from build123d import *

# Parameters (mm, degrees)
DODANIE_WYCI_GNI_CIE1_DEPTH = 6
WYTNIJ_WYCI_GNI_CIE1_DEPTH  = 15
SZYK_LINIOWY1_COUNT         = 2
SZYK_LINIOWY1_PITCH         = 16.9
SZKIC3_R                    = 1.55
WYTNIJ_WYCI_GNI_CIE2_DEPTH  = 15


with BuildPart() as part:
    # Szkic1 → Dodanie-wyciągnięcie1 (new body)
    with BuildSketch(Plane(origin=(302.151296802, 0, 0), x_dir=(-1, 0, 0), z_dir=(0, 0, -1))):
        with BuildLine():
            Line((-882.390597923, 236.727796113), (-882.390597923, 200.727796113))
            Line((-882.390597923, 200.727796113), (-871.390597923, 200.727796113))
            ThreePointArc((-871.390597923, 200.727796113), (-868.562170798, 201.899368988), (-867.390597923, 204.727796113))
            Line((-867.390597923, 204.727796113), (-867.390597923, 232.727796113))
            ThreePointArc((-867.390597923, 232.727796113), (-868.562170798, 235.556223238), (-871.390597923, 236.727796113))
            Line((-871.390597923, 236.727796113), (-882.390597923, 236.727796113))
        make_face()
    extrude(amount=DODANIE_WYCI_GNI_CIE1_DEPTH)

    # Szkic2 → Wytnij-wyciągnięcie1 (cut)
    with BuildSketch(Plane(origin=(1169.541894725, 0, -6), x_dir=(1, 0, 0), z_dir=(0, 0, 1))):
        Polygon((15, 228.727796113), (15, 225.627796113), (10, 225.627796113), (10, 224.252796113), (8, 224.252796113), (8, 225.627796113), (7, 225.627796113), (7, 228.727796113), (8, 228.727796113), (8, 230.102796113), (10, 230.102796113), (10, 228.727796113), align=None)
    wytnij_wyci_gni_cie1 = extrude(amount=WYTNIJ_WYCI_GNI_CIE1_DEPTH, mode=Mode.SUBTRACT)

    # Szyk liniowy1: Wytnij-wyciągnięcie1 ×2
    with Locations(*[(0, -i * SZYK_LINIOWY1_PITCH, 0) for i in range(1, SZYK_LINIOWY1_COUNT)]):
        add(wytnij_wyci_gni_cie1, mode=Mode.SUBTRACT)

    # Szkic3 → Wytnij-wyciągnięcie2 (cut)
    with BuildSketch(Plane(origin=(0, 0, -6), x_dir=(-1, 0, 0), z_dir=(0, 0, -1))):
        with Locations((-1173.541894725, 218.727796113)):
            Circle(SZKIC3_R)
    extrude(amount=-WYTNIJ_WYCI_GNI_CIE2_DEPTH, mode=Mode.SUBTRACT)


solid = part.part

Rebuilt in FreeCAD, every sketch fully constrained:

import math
import FreeCAD as App
import Part
import Sketcher
from FreeCAD import Vector

doc = App.newDocument("Part")
body = doc.addObject("PartDesign::Body", "Body")

sketch1 = body.newObject("Sketcher::SketchObject", "Sketch")
sketch1.AttachmentSupport = (doc.getObject("XY_Plane"), [""])
sketch1.MapMode = "FlatFace"
sketch1.addGeometry(Part.LineSegment(Vector(1184.5, 236.7, 0), Vector(1184.5, 200.7, 0)), False)
sketch1.addGeometry(Part.LineSegment(Vector(1184.5, 200.7, 0), Vector(1173.5, 200.7, 0)), False)
sketch1.addGeometry(Part.ArcOfCircle(Part.Circle(Vector(1173.5, 204.7, 0), Vector(0, 0, 1), 4), math.radians(180), math.radians(270)), False)
sketch1.addGeometry(Part.LineSegment(Vector(1169.5, 204.7, 0), Vector(1169.5, 232.7, 0)), False)
sketch1.addGeometry(Part.ArcOfCircle(Part.Circle(Vector(1173.5, 232.7, 0), Vector(0, 0, 1), 4), math.radians(90), math.radians(180)), False)
sketch1.addGeometry(Part.LineSegment(Vector(1173.5, 236.7, 0), Vector(1184.5, 236.7, 0)), False)
sketch1.addConstraint(Sketcher.Constraint("Coincident", 0, 2, 1, 1))
sketch1.addConstraint(Sketcher.Constraint("Tangent", 1, 2, 2, 2))
sketch1.addConstraint(Sketcher.Constraint("Tangent", 2, 1, 3, 1))
sketch1.addConstraint(Sketcher.Constraint("Tangent", 3, 2, 4, 2))
sketch1.addConstraint(Sketcher.Constraint("Tangent", 4, 1, 5, 1))
sketch1.addConstraint(Sketcher.Constraint("Coincident", 5, 2, 0, 1))
sketch1.addConstraint(Sketcher.Constraint("Vertical", 0))
sketch1.addConstraint(Sketcher.Constraint("Horizontal", 1))
sketch1.addConstraint(Sketcher.Constraint("Vertical", 3))
sketch1.addConstraint(Sketcher.Constraint("Horizontal", 5))
sketch1.addConstraint(Sketcher.Constraint("Equal", 2, 4))
sketch1.addConstraint(Sketcher.Constraint("Radius", 2, 4.0))
sketch1.addConstraint(Sketcher.Constraint("DistanceX", 1, 2, 1, 1, 11.0))
sketch1.addConstraint(Sketcher.Constraint("DistanceY", 0, 2, 0, 1, 36.0))
sketch1.addConstraint(Sketcher.Constraint("DistanceX", -1, 1, 2, 3, 1173.541895))
sketch1.addConstraint(Sketcher.Constraint("DistanceY", -1, 1, 2, 3, 204.727796))
pad1 = body.newObject("PartDesign::Pad", "Pad")
pad1.Profile = sketch1
pad1.Length = 6
pad1.Reversed = True

sketch2 = body.newObject("Sketcher::SketchObject", "Sketch001")
sketch2.AttachmentSupport = (doc.getObject("XY_Plane"), [""])
sketch2.MapMode = "FlatFace"
sketch2.AttachmentOffset = App.Placement(Vector(0, 0, -6), App.Rotation())
sketch2.addGeometry(Part.LineSegment(Vector(1184.5, 225.6, 0), Vector(1184.5, 228.7, 0)), False)
sketch2.addGeometry(Part.LineSegment(Vector(1184.5, 228.7, 0), Vector(1179.5, 228.7, 0)), False)
sketch2.addGeometry(Part.LineSegment(Vector(1179.5, 228.7, 0), Vector(1179.5, 230.1, 0)), False)
sketch2.addGeometry(Part.LineSegment(Vector(1179.5, 230.1, 0), Vector(1177.5, 230.1, 0)), False)
sketch2.addGeometry(Part.LineSegment(Vector(1177.5, 230.1, 0), Vector(1177.5, 228.7, 0)), False)
sketch2.addGeometry(Part.LineSegment(Vector(1177.5, 228.7, 0), Vector(1176.5, 228.7, 0)), False)
sketch2.addGeometry(Part.LineSegment(Vector(1176.5, 228.7, 0), Vector(1176.5, 225.6, 0)), False)
sketch2.addGeometry(Part.LineSegment(Vector(1176.5, 225.6, 0), Vector(1177.5, 225.6, 0)), False)
sketch2.addGeometry(Part.LineSegment(Vector(1177.5, 225.6, 0), Vector(1177.5, 224.3, 0)), False)
sketch2.addGeometry(Part.LineSegment(Vector(1177.5, 224.3, 0), Vector(1179.5, 224.3, 0)), False)
sketch2.addGeometry(Part.LineSegment(Vector(1179.5, 224.3, 0), Vector(1179.5, 225.6, 0)), False)
sketch2.addGeometry(Part.LineSegment(Vector(1179.5, 225.6, 0), Vector(1184.5, 225.6, 0)), False)
sketch2.addConstraint(Sketcher.Constraint("Coincident", 0, 2, 1, 1))
sketch2.addConstraint(Sketcher.Constraint("Coincident", 1, 2, 2, 1))
sketch2.addConstraint(Sketcher.Constraint("Coincident", 2, 2, 3, 1))
sketch2.addConstraint(Sketcher.Constraint("Coincident", 3, 2, 4, 1))
sketch2.addConstraint(Sketcher.Constraint("Coincident", 4, 2, 5, 1))
sketch2.addConstraint(Sketcher.Constraint("Coincident", 5, 2, 6, 1))
sketch2.addConstraint(Sketcher.Constraint("Coincident", 6, 2, 7, 1))
sketch2.addConstraint(Sketcher.Constraint("Coincident", 7, 2, 8, 1))
sketch2.addConstraint(Sketcher.Constraint("Coincident", 8, 2, 9, 1))
sketch2.addConstraint(Sketcher.Constraint("Coincident", 9, 2, 10, 1))
sketch2.addConstraint(Sketcher.Constraint("Coincident", 10, 2, 11, 1))
sketch2.addConstraint(Sketcher.Constraint("Coincident", 11, 2, 0, 1))
sketch2.addConstraint(Sketcher.Constraint("Vertical", 0))
sketch2.addConstraint(Sketcher.Constraint("Horizontal", 1))
sketch2.addConstraint(Sketcher.Constraint("Vertical", 2))
sketch2.addConstraint(Sketcher.Constraint("Horizontal", 3))
sketch2.addConstraint(Sketcher.Constraint("Vertical", 4))
sketch2.addConstraint(Sketcher.Constraint("Horizontal", 5))
sketch2.addConstraint(Sketcher.Constraint("Vertical", 6))
sketch2.addConstraint(Sketcher.Constraint("Horizontal", 7))
sketch2.addConstraint(Sketcher.Constraint("Vertical", 8))
sketch2.addConstraint(Sketcher.Constraint("Horizontal", 9))
sketch2.addConstraint(Sketcher.Constraint("Vertical", 10))
sketch2.addConstraint(Sketcher.Constraint("Horizontal", 11))
sketch2.addConstraint(Sketcher.Constraint("Horizontal", 1, 2, 4, 2))
sketch2.addConstraint(Sketcher.Constraint("Horizontal", 7, 2, 10, 2))
sketch2.addConstraint(Sketcher.Constraint("Vertical", 4, 2, 7, 2))
sketch2.addConstraint(Sketcher.Constraint("Vertical", 2, 2, 9, 2))
sketch2.addConstraint(Sketcher.Constraint("Equal", 4, 8))
sketch2.addConstraint(Sketcher.Constraint("DistanceX", 1, 2, 1, 1, 5.0))
sketch2.addConstraint(Sketcher.Constraint("DistanceX", 3, 2, 3, 1, 2.0))
sketch2.addConstraint(Sketcher.Constraint("DistanceX", 5, 2, 5, 1, 1.0))
sketch2.addConstraint(Sketcher.Constraint("DistanceY", 0, 1, 0, 2, 3.1))
sketch2.addConstraint(Sketcher.Constraint("DistanceY", 2, 1, 2, 2, 1.375))
sketch2.addConstraint(Sketcher.Constraint("DistanceX", -1, 1, 0, 2, 1184.541895))
sketch2.addConstraint(Sketcher.Constraint("DistanceY", -1, 1, 0, 2, 228.727796))
pocket1 = body.newObject("PartDesign::Pocket", "Pocket")
pocket1.Profile = sketch2
pocket1.Length = 15
pocket1.Reversed = True
doc.recompute()

linearpattern = body.newObject("PartDesign::LinearPattern", "LinearPattern")
linearpattern.Originals = [pocket1]
linearpattern.Direction = (doc.getObject("Y_Axis"), [""])
linearpattern.Mode = "offset"
linearpattern.Offset = 16.9
linearpattern.Occurrences = 2
linearpattern.Reversed = True
body.Tip = linearpattern

sketch3 = body.newObject("Sketcher::SketchObject", "Sketch002")
sketch3.AttachmentSupport = (doc.getObject("XY_Plane"), [""])
sketch3.MapMode = "FlatFace"
sketch3.AttachmentOffset = App.Placement(Vector(0, 0, -6), App.Rotation())
sketch3.addGeometry(Part.Circle(Vector(1173.5, 218.7, 0), Vector(0, 0, 1), 1.6), False)
sketch3.addConstraint(Sketcher.Constraint("Diameter", 0, 3.1))
sketch3.addConstraint(Sketcher.Constraint("DistanceX", -1, 1, 0, 3, 1173.541895))
sketch3.addConstraint(Sketcher.Constraint("DistanceY", -1, 1, 0, 3, 218.727796))
pocket2 = body.newObject("PartDesign::Pocket", "Pocket001")
pocket2.Profile = sketch3
pocket2.Length = 15
pocket2.Reversed = True

doc.recompute()
